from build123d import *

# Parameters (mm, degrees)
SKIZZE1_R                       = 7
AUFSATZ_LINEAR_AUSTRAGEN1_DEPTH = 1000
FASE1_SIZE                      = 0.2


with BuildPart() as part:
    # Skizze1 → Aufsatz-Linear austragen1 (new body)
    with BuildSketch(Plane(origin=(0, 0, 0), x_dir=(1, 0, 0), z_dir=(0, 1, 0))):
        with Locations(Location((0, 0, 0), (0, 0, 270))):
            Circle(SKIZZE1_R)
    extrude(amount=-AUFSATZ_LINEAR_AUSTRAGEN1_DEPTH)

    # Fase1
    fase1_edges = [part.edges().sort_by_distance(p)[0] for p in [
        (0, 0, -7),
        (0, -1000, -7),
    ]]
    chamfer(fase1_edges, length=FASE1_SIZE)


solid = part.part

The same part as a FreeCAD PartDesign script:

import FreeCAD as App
import Part
import Sketcher

V = App.Vector


def edges_at(feature, points):
    """Names of the edges that pass closest to the given points."""
    edges = feature.Shape.Edges
    near = lambda p: min(range(len(edges)), key=lambda i: edges[i].distToShape(Part.Vertex(*p))[0])
    return sorted({f"Edge{near(p) + 1}" for p in points})

doc = App.newDocument("Part")
body = doc.addObject("PartDesign::Body", "Body")

# Sketch on XZ plane
sketch1 = body.newObject("Sketcher::SketchObject", "Sketch")
sketch1.AttachmentSupport = (doc.getObject("XZ_Plane"), [""])
sketch1.MapMode = "FlatFace"
sketch1.addGeometry(Part.Circle(V(0, 0, 0), V(0, 0, 1), 7), False)
sketch1.addConstraint([
    Sketcher.Constraint("Coincident", 0, 3, -1, 1),
    Sketcher.Constraint("Diameter", 0, 14.0),
])
pad1 = body.newObject("PartDesign::Pad", "Pad")
pad1.Profile = sketch1
pad1.Length = 1000
doc.recompute()

chamfer = body.newObject("PartDesign::Chamfer", "Chamfer")
chamfer.Base = (pad1, edges_at(pad1, [(0, 0, -7), (0, -1000, -7)]))
chamfer.Size = 0.2

doc.recompute()
